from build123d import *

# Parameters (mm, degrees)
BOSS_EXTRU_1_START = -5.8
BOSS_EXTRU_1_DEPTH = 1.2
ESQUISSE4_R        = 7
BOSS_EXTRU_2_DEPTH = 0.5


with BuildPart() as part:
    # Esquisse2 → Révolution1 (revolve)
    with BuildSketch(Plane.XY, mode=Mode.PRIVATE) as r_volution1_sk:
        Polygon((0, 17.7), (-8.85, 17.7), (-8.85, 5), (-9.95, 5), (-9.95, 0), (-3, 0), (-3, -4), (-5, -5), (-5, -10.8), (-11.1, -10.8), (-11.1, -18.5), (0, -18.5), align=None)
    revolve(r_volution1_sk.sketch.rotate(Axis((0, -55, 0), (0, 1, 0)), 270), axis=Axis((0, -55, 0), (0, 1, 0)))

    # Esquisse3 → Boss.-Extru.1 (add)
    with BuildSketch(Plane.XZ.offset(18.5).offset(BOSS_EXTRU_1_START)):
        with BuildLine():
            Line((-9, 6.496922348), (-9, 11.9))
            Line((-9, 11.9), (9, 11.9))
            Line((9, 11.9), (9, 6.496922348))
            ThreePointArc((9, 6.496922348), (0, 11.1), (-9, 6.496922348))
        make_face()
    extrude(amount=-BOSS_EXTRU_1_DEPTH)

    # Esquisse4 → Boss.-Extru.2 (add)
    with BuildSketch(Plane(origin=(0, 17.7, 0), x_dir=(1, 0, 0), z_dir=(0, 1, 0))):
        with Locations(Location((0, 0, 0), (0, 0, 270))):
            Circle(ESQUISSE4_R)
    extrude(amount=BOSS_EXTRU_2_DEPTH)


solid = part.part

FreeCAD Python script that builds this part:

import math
import FreeCAD as App
import Part
import Sketcher
Q = App.Units.Quantity

doc = App.newDocument("Part")
body = doc.addObject("PartDesign::Body", "Body")

# Sketch on XY plane
sketch1 = doc.addObject("Sketcher::SketchObject", "Sketch")
body.addObject(sketch1)
sketch1.AttachmentSupport = (doc.XY_Plane, [""])
sketch1.MapMode = "FlatFace"
sketch1.addGeometry(Part.LineSegment(App.Vector(0, 17.7, 0), App.Vector(-8.8, 17.7, 0)), False)
sketch1.addGeometry(Part.LineSegment(App.Vector(-8.8, 17.7, 0), App.Vector(-8.8, 5, 0)), False)
sketch1.addGeometry(Part.LineSegment(App.Vector(-8.8, 5, 0), App.Vector(-9.9, 5, 0)), False)
sketch1.addGeometry(Part.LineSegment(App.Vector(-9.9, 5, 0), App.Vector(-9.9, 0, 0)), False)
sketch1.addGeometry(Part.LineSegment(App.Vector(-9.9, 0, 0), App.Vector(-3, 0, 0)), False)
sketch1.addGeometry(Part.LineSegment(App.Vector(-3, 0, 0), App.Vector(-3, -4, 0)), False)
sketch1.addGeometry(Part.LineSegment(App.Vector(-3, -4, 0), App.Vector(-5, -5, 0)), False)
sketch1.addGeometry(Part.LineSegment(App.Vector(-5, -5, 0), App.Vector(-5, -10.8, 0)), False)
sketch1.addGeometry(Part.LineSegment(App.Vector(-5, -10.8, 0), App.Vector(-11.1, -10.8, 0)), False)
sketch1.addGeometry(Part.LineSegment(App.Vector(-11.1, -10.8, 0), App.Vector(-11.1, -18.5, 0)), False)
sketch1.addGeometry(Part.LineSegment(App.Vector(-11.1, -18.5, 0), App.Vector(0, -18.5, 0)), False)
sketch1.addGeometry(Part.LineSegment(App.Vector(0, -18.5, 0), App.Vector(0, 17.7, 0)), False)
sketch1.addConstraint(Sketcher.Constraint("Coincident", 0, 2, 1, 1))
sketch1.addConstraint(Sketcher.Constraint("Coincident", 1, 2, 2, 1))
sketch1.addConstraint(Sketcher.Constraint("Coincident", 2, 2, 3, 1))
sketch1.addConstraint(Sketcher.Constraint("Coincident", 3, 2, 4, 1))
sketch1.addConstraint(Sketcher.Constraint("Coincident", 4, 2, 5, 1))
sketch1.addConstraint(Sketcher.Constraint("Coincident", 5, 2, 6, 1))
sketch1.addConstraint(Sketcher.Constraint("Coincident", 6, 2, 7, 1))
sketch1.addConstraint(Sketcher.Constraint("Coincident", 7, 2, 8, 1))
sketch1.addConstraint(Sketcher.Constraint("Coincident", 8, 2, 9, 1))
sketch1.addConstraint(Sketcher.Constraint("Coincident", 9, 2, 10, 1))
sketch1.addConstraint(Sketcher.Constraint("Coincident", 10, 2, 11, 1))
sketch1.addConstraint(Sketcher.Constraint("Coincident", 11, 2, 0, 1))
sketch1.addConstraint(Sketcher.Constraint("Horizontal", 0))
sketch1.addConstraint(Sketcher.Constraint("Vertical", 1))
sketch1.addConstraint(Sketcher.Constraint("Horizontal", 2))
sketch1.addConstraint(Sketcher.Constraint("Vertical", 3))
sketch1.addConstraint(Sketcher.Constraint("Horizontal", 4))
sketch1.addConstraint(Sketcher.Constraint("Vertical", 5))
sketch1.addConstraint(Sketcher.Constraint("Vertical", 7))
sketch1.addConstraint(Sketcher.Constraint("Horizontal", 8))
sketch1.addConstraint(Sketcher.Constraint("Vertical", 9))
sketch1.addConstraint(Sketcher.Constraint("Horizontal", 10))
sketch1.addConstraint(Sketcher.Constraint("Vertical", 11))
sketch1.addConstraint(Sketcher.Constraint("PointOnObject", 3, 2, -1))
sketch1.addConstraint(Sketcher.Constraint("PointOnObject", 10, 2, -2))
sketch1.addConstraint(Sketcher.Constraint("DistanceY", 3, 2, 3, 1, Q("5 mm")))
sketch1.addConstraint(Sketcher.Constraint("DistanceY", 5, 2, 5, 1, Q("4 mm")))
sketch1.addConstraint(Sketcher.Constraint("DistanceX", 2, 2, 2, 1, Q("1.1 mm")))
sketch1.addConstraint(Sketcher.Constraint("DistanceX", 8, 2, 8, 1, Q("6.1 mm")))
sketch1.addConstraint(Sketcher.Constraint("DistanceX", 10, 1, 10, 2, Q("11.1 mm")))
sketch1.addConstraint(Sketcher.Constraint("DistanceY", 1, 2, 1, 1, Q("12.7 mm")))
sketch1.addConstraint(Sketcher.Constraint("DistanceY", 7, 2, 7, 1, Q("5.8 mm")))
sketch1.addConstraint(Sketcher.Constraint("DistanceY", 9, 2, 9, 1, Q("7.7 mm")))
sketch1.addConstraint(Sketcher.Constraint("DistanceY", 11, 1, 11, 2, Q("36.2 mm")))
sketch1.addConstraint(Sketcher.Constraint("DistanceX", 4, 2, -1, 1, Q("3 mm")))
sketch1.addConstraint(Sketcher.Constraint("DistanceX", 0, 2, 0, 1, Q("8.85 mm")))
revolution = doc.addObject("PartDesign::Revolution", "Revolution")
body.addObject(revolution)
revolution.Profile = sketch1
revolution.ReferenceAxis = (sketch1, ["V_Axis"])
revolution.Angle = 360

# Sketch on XZ plane
sketch2 = doc.addObject("Sketcher::SketchObject", "Sketch001")
body.addObject(sketch2)
sketch2.AttachmentSupport = (doc.XZ_Plane, [""])
sketch2.MapMode = "FlatFace"
sketch2.AttachmentOffset = App.Placement(App.Vector(0, 0, 12.7), App.Rotation())
sketch2.addGeometry(Part.LineSegment(App.Vector(-9, 12, 0), App.Vector(-9, 6, 0)), False)
sketch2.addGeometry(Part.ArcOfCircle(Part.Circle(App.Vector(0, 0, 0), App.Vector(0, 0, 1), 11), math.radians(36), math.radians(144)), False)
sketch2.addGeometry(Part.LineSegment(App.Vector(9, 6, 0), App.Vector(9, 12, 0)), False)
sketch2.addGeometry(Part.LineSegment(App.Vector(9, 12, 0), App.Vector(-9, 12, 0)), False)
sketch2.addConstraint(Sketcher.Constraint("Coincident", 0, 2, 1, 2))
sketch2.addConstraint(Sketcher.Constraint("Coincident", 1, 1, 2, 1))
sketch2.addConstraint(Sketcher.Constraint("Coincident", 2, 2, 3, 1))
sketch2.addConstraint(Sketcher.Constraint("Coincident", 3, 2, 0, 1))
sketch2.addConstraint(Sketcher.Constraint("Vertical", 0))
sketch2.addConstraint(Sketcher.Constraint("Vertical", 2))
sketch2.addConstraint(Sketcher.Constraint("Horizontal", 3))
sketch2.addConstraint(Sketcher.Constraint("Coincident", 1, 3, -1, 1))
sketch2.addConstraint(Sketcher.Constraint("Horizontal", 0, 2, 1, 1))
sketch2.addConstraint(Sketcher.Constraint("Radius", 1, Q("11.1 mm")))
sketch2.addConstraint(Sketcher.Constraint("DistanceX", 3, 2, 3, 1, Q("18 mm")))
sketch2.addConstraint(Sketcher.Constraint("DistanceY", -1, 1, 2, 2, Q("11.9 mm")))
pad1 = doc.addObject("PartDesign::Pad", "Pad")
body.addObject(pad1)
pad1.Profile = sketch2
pad1.Length = 1.2
pad1.Reversed = True

# Sketch on XZ plane
sketch3 = doc.addObject("Sketcher::SketchObject", "Sketch002")
body.addObject(sketch3)
sketch3.AttachmentSupport = (doc.XZ_Plane, [""])
sketch3.MapMode = "FlatFace"
sketch3.AttachmentOffset = App.Placement(App.Vector(0, 0, -17.7), App.Rotation())
sketch3.addGeometry(Part.Circle(App.Vector(0, 0, 0), App.Vector(0, 0, 1), 7), False)
sketch3.addConstraint(Sketcher.Constraint("Coincident", 0, 3, -1, 1))
sketch3.addConstraint(Sketcher.Constraint("Diameter", 0, Q("14 mm")))
pad2 = doc.addObject("PartDesign::Pad", "Pad001")
body.addObject(pad2)
pad2.Profile = sketch3
pad2.Length = 0.5
pad2.Reversed = True

doc.recompute()
